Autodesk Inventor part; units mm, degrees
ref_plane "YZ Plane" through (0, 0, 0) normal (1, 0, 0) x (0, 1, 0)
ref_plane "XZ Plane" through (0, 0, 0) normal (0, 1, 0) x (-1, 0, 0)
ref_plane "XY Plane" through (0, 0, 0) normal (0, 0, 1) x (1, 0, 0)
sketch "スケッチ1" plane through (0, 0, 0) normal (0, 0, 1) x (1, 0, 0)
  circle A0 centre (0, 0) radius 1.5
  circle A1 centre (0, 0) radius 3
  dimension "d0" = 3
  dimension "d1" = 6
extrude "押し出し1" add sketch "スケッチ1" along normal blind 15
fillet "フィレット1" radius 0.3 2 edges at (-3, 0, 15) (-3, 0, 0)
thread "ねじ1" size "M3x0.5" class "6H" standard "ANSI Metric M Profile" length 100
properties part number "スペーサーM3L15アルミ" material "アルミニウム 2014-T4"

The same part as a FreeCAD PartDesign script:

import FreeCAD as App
import Part
import Sketcher
from FreeCAD import Vector
Q = App.Units.Quantity


def edges_at(feature, points):
    """Names of the edges that pass closest to the given points."""
    edges = feature.Shape.Edges
    near = lambda p: min(range(len(edges)), key=lambda i: edges[i].distToShape(Part.Vertex(*p))[0])
    return sorted({f"Edge{near(p) + 1}" for p in points})

doc = App.newDocument("Part")
body = doc.addObject("PartDesign::Body", "Body")

# Sketch on XY plane
sketch1 = doc.addObject("Sketcher::SketchObject", "Sketch")
body.addObject(sketch1)
sketch1.AttachmentSupport = (doc.XY_Plane, [""])
sketch1.MapMode = "FlatFace"
sketch1.addGeometry(Part.Circle(Vector(0, 0, 0), Vector(0, 0, 1), 3), False)
sketch1.addGeometry(Part.Circle(Vector(0, 0, 0), Vector(0, 0, 1), 1.5), False)
sketch1.addConstraint(Sketcher.Constraint("Coincident", 0, 3, -1, 1))
sketch1.addConstraint(Sketcher.Constraint("Coincident", 1, 3, -1, 1))
sketch1.addConstraint(Sketcher.Constraint("Diameter", 0, Q("6 mm")))
sketch1.addConstraint(Sketcher.Constraint("Diameter", 1, Q("3 mm")))
pad1 = doc.addObject("PartDesign::Pad", "Pad")
body.addObject(pad1)
pad1.Profile = sketch1
pad1.Length = 15
doc.recompute()

fillet = doc.addObject("PartDesign::Fillet", "Fillet")
body.addObject(fillet)
fillet.Base = (pad1, edges_at(pad1, [(-3, 0, 15), (-3, 0, 0)]))
fillet.Radius = 0.3

doc.recompute()
